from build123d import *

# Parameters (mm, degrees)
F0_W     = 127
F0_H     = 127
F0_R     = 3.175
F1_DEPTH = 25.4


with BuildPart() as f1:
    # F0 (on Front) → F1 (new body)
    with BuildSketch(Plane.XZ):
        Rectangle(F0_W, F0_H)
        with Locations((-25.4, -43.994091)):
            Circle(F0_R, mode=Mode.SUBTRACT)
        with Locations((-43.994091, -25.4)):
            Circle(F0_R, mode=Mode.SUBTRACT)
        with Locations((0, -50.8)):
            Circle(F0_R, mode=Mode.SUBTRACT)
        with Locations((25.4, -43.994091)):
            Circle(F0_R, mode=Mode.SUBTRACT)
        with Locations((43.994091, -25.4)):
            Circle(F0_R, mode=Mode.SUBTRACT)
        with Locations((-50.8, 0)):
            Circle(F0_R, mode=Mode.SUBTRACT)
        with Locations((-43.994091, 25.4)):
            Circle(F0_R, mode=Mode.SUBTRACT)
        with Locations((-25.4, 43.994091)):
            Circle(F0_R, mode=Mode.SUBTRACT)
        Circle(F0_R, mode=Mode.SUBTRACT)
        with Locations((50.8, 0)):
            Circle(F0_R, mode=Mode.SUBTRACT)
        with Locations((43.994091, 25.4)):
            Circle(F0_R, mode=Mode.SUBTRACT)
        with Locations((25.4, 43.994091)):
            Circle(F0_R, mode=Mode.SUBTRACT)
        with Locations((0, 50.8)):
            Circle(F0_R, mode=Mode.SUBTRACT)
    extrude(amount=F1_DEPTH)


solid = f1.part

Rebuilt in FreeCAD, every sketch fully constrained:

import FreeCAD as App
import Part
import Sketcher

V = App.Vector
Q = App.Units.Quantity

doc = App.newDocument("Part")
body = doc.addObject("PartDesign::Body", "Body")

# Sketch on XZ plane
sketch1 = body.newObject("Sketcher::SketchObject", "Sketch")
sketch1.AttachmentSupport = (doc.getObject("XZ_Plane"), [""])
sketch1.MapMode = "FlatFace"
sketch1.addGeometry(Part.LineSegment(V(-63.5, 63.5, 0), V(-63.5, -63.5, 0)), False)
sketch1.addGeometry(Part.LineSegment(V(-63.5, -63.5, 0), V(63.5, -63.5, 0)), False)
sketch1.addGeometry(Part.LineSegment(V(63.5, -63.5, 0), V(63.5, 63.5, 0)), False)
sketch1.addGeometry(Part.LineSegment(V(63.5, 63.5, 0), V(-63.5, 63.5, 0)), False)
sketch1.addGeometry(Part.Circle(V(-25.4, -44, 0), V(0, 0, 1), 3.2), False)
sketch1.addGeometry(Part.Circle(V(-44, -25.4, 0), V(0, 0, 1), 3.2), False)
sketch1.addGeometry(Part.Circle(V(0, -50.8, 0), V(0, 0, 1), 3.2), False)
sketch1.addGeometry(Part.Circle(V(25.4, -44, 0), V(0, 0, 1), 3.2), False)
sketch1.addGeometry(Part.Circle(V(44, -25.4, 0), V(0, 0, 1), 3.2), False)
sketch1.addGeometry(Part.Circle(V(-50.8, 0, 0), V(0, 0, 1), 3.2), False)
sketch1.addGeometry(Part.Circle(V(-44, 25.4, 0), V(0, 0, 1), 3.2), False)
sketch1.addGeometry(Part.Circle(V(-25.4, 44, 0), V(0, 0, 1), 3.2), False)
sketch1.addGeometry(Part.Circle(V(0, 0, 0), V(0, 0, 1), 3.2), False)
sketch1.addGeometry(Part.Circle(V(50.8, 0, 0), V(0, 0, 1), 3.2), False)
sketch1.addGeometry(Part.Circle(V(44, 25.4, 0), V(0, 0, 1), 3.2), False)
sketch1.addGeometry(Part.Circle(V(0, 50.8, 0), V(0, 0, 1), 3.2), False)
sketch1.addGeometry(Part.Circle(V(25.4, 44, 0), V(0, 0, 1), 3.2), False)
sketch1.addConstraint(Sketcher.Constraint("Coincident", 0, 2, 1, 1))
sketch1.addConstraint(Sketcher.Constraint("Coincident", 1, 2, 2, 1))
sketch1.addConstraint(Sketcher.Constraint("Coincident", 2, 2, 3, 1))
sketch1.addConstraint(Sketcher.Constraint("Coincident", 3, 2, 0, 1))
sketch1.addConstraint(Sketcher.Constraint("Vertical", 0))
sketch1.addConstraint(Sketcher.Constraint("Horizontal", 1))
sketch1.addConstraint(Sketcher.Constraint("Vertical", 2))
sketch1.addConstraint(Sketcher.Constraint("Horizontal", 3))
sketch1.addConstraint(Sketcher.Constraint("Coincident", 12, 3, -1, 1))
sketch1.addConstraint(Sketcher.Constraint("Equal", 4, 5))
sketch1.addConstraint(Sketcher.Constraint("Equal", 5, 6))
sketch1.addConstraint(Sketcher.Constraint("Equal", 6, 7))
sketch1.addConstraint(Sketcher.Constraint("Equal", 7, 8))
sketch1.addConstraint(Sketcher.Constraint("Equal", 8, 9))
sketch1.addConstraint(Sketcher.Constraint("Equal", 9, 10))
sketch1.addConstraint(Sketcher.Constraint("Equal", 10, 11))
sketch1.addConstraint(Sketcher.Constraint("Equal", 11, 12))
sketch1.addConstraint(Sketcher.Constraint("Equal", 12, 13))
sketch1.addConstraint(Sketcher.Constraint("Equal", 13, 14))
sketch1.addConstraint(Sketcher.Constraint("Equal", 14, 15))
sketch1.addConstraint(Sketcher.Constraint("Equal", 15, 16))
sketch1.addConstraint(Sketcher.Constraint("Symmetric", 8, 3, 10, 3, -1, 1))
sketch1.addConstraint(Sketcher.Constraint("Symmetric", 7, 3, 11, 3, -1, 1))
sketch1.addConstraint(Sketcher.Constraint("Symmetric", 9, 3, 13, 3, -1, 1))
sketch1.addConstraint(Sketcher.Constraint("Symmetric", 5, 3, 14, 3, -1, 1))
sketch1.addConstraint(Sketcher.Constraint("Symmetric", 6, 3, 15, 3, -1, 1))
sketch1.addConstraint(Sketcher.Constraint("Symmetric", 4, 3, 16, 3, -1, 1))
sketch1.addConstraint(Sketcher.Constraint("Symmetric", 0, 2, 2, 2, -1, 1))
sketch1.addConstraint(Sketcher.Constraint("Symmetric", 4, 3, 7, 3, -2))
sketch1.addConstraint(Sketcher.Constraint("Symmetric", 5, 3, 8, 3, -2))
sketch1.addConstraint(Sketcher.Constraint("PointOnObject", 6, 3, -2))
sketch1.addConstraint(Sketcher.Constraint("PointOnObject", 9, 3, -1))
sketch1.addConstraint(Sketcher.Constraint("Equal", 3, 0))
sketch1.addConstraint(Sketcher.Constraint("Diameter", 4, Q("0.25 in")))
sketch1.addConstraint(Sketcher.Constraint("DistanceX", 1, 1, 1, 2, Q("5 in")))
sketch1.addConstraint(Sketcher.Constraint("DistanceX", 4, 3, -1, 1, Q("1 in")))
sketch1.addConstraint(Sketcher.Constraint("DistanceY", 5, 3, -1, 1, Q("1 in")))
sketch1.addConstraint(Sketcher.Constraint("DistanceY", 6, 3, -1, 1, Q("2 in")))
sketch1.addConstraint(Sketcher.Constraint("DistanceX", 9, 3, -1, 1, Q("2 in")))
sketch1.addConstraint(Sketcher.Constraint("DistanceY", 4, 3, -1, 1, Q("43.994091 mm")))
sketch1.addConstraint(Sketcher.Constraint("DistanceX", 5, 3, -1, 1, Q("43.994091 mm")))
pad1 = body.newObject("PartDesign::Pad", "Pad")
pad1.Profile = sketch1
pad1.Length = Q("1 in")

doc.recompute()
